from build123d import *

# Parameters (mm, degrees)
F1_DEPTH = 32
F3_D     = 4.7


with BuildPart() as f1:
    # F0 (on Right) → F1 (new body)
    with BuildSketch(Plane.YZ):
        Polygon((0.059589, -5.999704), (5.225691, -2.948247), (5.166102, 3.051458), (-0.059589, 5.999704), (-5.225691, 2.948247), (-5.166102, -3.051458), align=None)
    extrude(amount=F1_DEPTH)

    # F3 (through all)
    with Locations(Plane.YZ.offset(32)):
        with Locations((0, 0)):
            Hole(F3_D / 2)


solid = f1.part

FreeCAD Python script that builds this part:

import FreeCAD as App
import Part
import Sketcher
from FreeCAD import Vector

doc = App.newDocument("Part")
body = doc.addObject("PartDesign::Body", "Body")

sketch1 = doc.addObject("Sketcher::SketchObject", "Sketch")
body.addObject(sketch1)
sketch1.AttachmentSupport = (doc.YZ_Plane, [""])
sketch1.MapMode = "FlatFace"
sketch1.addGeometry([
    Part.LineSegment(Vector(0, -6, 0), Vector(5, -3, 0)),
    Part.LineSegment(Vector(5, -3, 0), Vector(5, 3, 0)),
    Part.LineSegment(Vector(5, 3, 0), Vector(0, 6, 0)),
    Part.LineSegment(Vector(0, 6, 0), Vector(-5, 3, 0)),
    Part.LineSegment(Vector(-5, 3, 0), Vector(-5, -3, 0)),
    Part.LineSegment(Vector(-5, -3, 0), Vector(0, -6, 0)),
], False)
sketch1.addConstraint([
    Sketcher.Constraint("Coincident", 0, 2, 1, 1),
    Sketcher.Constraint("Coincident", 1, 2, 2, 1),
    Sketcher.Constraint("Coincident", 2, 2, 3, 1),
    Sketcher.Constraint("Coincident", 3, 2, 4, 1),
    Sketcher.Constraint("Coincident", 4, 2, 5, 1),
    Sketcher.Constraint("Coincident", 5, 2, 0, 1),
    Sketcher.Constraint("Symmetric", 0, 2, 3, 2, -1, 1),
    Sketcher.Constraint("Symmetric", 1, 2, 4, 2, -1, 1),
    Sketcher.Constraint("Symmetric", 2, 2, 5, 2, -1, 1),
    Sketcher.Constraint("Equal", 0, 1),
    Sketcher.Constraint("Equal", 1, 2),
    Sketcher.Constraint("Distance", 0, 6.0),
    Sketcher.Constraint("DistanceX", -1, 1, 0, 2, 5.225691),
    Sketcher.Constraint("DistanceX", 2, 2, -1, 1, 0.059589),
    Sketcher.Constraint("DistanceX", 1, 2, 0, 2, 0.059589),
])
pad1 = doc.addObject("PartDesign::Pad", "Pad")
body.addObject(pad1)
pad1.Profile = sketch1
pad1.Length = 32

sketch2 = doc.addObject("Sketcher::SketchObject", "Sketch001")
body.addObject(sketch2)
sketch2.AttachmentSupport = (doc.YZ_Plane, [""])
sketch2.MapMode = "FlatFace"
sketch2.AttachmentOffset = App.Placement(Vector(0, 0, 32), App.Rotation())
sketch2.addGeometry(Part.Circle(Vector(0, 0, 0), Vector(0, 0, 1), 2.4), False)
sketch2.addConstraint([
    Sketcher.Constraint("Coincident", 0, 3, -1, 1),
    Sketcher.Constraint("Diameter", 0, 4.7),
])
doc.recompute()
hole = doc.addObject("PartDesign::Hole", "Hole")
body.addObject(hole)
hole.Profile = sketch2
hole.ThreadType = "None"
hole.Diameter = 4.7
hole.DepthType = "ThroughAll"

doc.recompute()
